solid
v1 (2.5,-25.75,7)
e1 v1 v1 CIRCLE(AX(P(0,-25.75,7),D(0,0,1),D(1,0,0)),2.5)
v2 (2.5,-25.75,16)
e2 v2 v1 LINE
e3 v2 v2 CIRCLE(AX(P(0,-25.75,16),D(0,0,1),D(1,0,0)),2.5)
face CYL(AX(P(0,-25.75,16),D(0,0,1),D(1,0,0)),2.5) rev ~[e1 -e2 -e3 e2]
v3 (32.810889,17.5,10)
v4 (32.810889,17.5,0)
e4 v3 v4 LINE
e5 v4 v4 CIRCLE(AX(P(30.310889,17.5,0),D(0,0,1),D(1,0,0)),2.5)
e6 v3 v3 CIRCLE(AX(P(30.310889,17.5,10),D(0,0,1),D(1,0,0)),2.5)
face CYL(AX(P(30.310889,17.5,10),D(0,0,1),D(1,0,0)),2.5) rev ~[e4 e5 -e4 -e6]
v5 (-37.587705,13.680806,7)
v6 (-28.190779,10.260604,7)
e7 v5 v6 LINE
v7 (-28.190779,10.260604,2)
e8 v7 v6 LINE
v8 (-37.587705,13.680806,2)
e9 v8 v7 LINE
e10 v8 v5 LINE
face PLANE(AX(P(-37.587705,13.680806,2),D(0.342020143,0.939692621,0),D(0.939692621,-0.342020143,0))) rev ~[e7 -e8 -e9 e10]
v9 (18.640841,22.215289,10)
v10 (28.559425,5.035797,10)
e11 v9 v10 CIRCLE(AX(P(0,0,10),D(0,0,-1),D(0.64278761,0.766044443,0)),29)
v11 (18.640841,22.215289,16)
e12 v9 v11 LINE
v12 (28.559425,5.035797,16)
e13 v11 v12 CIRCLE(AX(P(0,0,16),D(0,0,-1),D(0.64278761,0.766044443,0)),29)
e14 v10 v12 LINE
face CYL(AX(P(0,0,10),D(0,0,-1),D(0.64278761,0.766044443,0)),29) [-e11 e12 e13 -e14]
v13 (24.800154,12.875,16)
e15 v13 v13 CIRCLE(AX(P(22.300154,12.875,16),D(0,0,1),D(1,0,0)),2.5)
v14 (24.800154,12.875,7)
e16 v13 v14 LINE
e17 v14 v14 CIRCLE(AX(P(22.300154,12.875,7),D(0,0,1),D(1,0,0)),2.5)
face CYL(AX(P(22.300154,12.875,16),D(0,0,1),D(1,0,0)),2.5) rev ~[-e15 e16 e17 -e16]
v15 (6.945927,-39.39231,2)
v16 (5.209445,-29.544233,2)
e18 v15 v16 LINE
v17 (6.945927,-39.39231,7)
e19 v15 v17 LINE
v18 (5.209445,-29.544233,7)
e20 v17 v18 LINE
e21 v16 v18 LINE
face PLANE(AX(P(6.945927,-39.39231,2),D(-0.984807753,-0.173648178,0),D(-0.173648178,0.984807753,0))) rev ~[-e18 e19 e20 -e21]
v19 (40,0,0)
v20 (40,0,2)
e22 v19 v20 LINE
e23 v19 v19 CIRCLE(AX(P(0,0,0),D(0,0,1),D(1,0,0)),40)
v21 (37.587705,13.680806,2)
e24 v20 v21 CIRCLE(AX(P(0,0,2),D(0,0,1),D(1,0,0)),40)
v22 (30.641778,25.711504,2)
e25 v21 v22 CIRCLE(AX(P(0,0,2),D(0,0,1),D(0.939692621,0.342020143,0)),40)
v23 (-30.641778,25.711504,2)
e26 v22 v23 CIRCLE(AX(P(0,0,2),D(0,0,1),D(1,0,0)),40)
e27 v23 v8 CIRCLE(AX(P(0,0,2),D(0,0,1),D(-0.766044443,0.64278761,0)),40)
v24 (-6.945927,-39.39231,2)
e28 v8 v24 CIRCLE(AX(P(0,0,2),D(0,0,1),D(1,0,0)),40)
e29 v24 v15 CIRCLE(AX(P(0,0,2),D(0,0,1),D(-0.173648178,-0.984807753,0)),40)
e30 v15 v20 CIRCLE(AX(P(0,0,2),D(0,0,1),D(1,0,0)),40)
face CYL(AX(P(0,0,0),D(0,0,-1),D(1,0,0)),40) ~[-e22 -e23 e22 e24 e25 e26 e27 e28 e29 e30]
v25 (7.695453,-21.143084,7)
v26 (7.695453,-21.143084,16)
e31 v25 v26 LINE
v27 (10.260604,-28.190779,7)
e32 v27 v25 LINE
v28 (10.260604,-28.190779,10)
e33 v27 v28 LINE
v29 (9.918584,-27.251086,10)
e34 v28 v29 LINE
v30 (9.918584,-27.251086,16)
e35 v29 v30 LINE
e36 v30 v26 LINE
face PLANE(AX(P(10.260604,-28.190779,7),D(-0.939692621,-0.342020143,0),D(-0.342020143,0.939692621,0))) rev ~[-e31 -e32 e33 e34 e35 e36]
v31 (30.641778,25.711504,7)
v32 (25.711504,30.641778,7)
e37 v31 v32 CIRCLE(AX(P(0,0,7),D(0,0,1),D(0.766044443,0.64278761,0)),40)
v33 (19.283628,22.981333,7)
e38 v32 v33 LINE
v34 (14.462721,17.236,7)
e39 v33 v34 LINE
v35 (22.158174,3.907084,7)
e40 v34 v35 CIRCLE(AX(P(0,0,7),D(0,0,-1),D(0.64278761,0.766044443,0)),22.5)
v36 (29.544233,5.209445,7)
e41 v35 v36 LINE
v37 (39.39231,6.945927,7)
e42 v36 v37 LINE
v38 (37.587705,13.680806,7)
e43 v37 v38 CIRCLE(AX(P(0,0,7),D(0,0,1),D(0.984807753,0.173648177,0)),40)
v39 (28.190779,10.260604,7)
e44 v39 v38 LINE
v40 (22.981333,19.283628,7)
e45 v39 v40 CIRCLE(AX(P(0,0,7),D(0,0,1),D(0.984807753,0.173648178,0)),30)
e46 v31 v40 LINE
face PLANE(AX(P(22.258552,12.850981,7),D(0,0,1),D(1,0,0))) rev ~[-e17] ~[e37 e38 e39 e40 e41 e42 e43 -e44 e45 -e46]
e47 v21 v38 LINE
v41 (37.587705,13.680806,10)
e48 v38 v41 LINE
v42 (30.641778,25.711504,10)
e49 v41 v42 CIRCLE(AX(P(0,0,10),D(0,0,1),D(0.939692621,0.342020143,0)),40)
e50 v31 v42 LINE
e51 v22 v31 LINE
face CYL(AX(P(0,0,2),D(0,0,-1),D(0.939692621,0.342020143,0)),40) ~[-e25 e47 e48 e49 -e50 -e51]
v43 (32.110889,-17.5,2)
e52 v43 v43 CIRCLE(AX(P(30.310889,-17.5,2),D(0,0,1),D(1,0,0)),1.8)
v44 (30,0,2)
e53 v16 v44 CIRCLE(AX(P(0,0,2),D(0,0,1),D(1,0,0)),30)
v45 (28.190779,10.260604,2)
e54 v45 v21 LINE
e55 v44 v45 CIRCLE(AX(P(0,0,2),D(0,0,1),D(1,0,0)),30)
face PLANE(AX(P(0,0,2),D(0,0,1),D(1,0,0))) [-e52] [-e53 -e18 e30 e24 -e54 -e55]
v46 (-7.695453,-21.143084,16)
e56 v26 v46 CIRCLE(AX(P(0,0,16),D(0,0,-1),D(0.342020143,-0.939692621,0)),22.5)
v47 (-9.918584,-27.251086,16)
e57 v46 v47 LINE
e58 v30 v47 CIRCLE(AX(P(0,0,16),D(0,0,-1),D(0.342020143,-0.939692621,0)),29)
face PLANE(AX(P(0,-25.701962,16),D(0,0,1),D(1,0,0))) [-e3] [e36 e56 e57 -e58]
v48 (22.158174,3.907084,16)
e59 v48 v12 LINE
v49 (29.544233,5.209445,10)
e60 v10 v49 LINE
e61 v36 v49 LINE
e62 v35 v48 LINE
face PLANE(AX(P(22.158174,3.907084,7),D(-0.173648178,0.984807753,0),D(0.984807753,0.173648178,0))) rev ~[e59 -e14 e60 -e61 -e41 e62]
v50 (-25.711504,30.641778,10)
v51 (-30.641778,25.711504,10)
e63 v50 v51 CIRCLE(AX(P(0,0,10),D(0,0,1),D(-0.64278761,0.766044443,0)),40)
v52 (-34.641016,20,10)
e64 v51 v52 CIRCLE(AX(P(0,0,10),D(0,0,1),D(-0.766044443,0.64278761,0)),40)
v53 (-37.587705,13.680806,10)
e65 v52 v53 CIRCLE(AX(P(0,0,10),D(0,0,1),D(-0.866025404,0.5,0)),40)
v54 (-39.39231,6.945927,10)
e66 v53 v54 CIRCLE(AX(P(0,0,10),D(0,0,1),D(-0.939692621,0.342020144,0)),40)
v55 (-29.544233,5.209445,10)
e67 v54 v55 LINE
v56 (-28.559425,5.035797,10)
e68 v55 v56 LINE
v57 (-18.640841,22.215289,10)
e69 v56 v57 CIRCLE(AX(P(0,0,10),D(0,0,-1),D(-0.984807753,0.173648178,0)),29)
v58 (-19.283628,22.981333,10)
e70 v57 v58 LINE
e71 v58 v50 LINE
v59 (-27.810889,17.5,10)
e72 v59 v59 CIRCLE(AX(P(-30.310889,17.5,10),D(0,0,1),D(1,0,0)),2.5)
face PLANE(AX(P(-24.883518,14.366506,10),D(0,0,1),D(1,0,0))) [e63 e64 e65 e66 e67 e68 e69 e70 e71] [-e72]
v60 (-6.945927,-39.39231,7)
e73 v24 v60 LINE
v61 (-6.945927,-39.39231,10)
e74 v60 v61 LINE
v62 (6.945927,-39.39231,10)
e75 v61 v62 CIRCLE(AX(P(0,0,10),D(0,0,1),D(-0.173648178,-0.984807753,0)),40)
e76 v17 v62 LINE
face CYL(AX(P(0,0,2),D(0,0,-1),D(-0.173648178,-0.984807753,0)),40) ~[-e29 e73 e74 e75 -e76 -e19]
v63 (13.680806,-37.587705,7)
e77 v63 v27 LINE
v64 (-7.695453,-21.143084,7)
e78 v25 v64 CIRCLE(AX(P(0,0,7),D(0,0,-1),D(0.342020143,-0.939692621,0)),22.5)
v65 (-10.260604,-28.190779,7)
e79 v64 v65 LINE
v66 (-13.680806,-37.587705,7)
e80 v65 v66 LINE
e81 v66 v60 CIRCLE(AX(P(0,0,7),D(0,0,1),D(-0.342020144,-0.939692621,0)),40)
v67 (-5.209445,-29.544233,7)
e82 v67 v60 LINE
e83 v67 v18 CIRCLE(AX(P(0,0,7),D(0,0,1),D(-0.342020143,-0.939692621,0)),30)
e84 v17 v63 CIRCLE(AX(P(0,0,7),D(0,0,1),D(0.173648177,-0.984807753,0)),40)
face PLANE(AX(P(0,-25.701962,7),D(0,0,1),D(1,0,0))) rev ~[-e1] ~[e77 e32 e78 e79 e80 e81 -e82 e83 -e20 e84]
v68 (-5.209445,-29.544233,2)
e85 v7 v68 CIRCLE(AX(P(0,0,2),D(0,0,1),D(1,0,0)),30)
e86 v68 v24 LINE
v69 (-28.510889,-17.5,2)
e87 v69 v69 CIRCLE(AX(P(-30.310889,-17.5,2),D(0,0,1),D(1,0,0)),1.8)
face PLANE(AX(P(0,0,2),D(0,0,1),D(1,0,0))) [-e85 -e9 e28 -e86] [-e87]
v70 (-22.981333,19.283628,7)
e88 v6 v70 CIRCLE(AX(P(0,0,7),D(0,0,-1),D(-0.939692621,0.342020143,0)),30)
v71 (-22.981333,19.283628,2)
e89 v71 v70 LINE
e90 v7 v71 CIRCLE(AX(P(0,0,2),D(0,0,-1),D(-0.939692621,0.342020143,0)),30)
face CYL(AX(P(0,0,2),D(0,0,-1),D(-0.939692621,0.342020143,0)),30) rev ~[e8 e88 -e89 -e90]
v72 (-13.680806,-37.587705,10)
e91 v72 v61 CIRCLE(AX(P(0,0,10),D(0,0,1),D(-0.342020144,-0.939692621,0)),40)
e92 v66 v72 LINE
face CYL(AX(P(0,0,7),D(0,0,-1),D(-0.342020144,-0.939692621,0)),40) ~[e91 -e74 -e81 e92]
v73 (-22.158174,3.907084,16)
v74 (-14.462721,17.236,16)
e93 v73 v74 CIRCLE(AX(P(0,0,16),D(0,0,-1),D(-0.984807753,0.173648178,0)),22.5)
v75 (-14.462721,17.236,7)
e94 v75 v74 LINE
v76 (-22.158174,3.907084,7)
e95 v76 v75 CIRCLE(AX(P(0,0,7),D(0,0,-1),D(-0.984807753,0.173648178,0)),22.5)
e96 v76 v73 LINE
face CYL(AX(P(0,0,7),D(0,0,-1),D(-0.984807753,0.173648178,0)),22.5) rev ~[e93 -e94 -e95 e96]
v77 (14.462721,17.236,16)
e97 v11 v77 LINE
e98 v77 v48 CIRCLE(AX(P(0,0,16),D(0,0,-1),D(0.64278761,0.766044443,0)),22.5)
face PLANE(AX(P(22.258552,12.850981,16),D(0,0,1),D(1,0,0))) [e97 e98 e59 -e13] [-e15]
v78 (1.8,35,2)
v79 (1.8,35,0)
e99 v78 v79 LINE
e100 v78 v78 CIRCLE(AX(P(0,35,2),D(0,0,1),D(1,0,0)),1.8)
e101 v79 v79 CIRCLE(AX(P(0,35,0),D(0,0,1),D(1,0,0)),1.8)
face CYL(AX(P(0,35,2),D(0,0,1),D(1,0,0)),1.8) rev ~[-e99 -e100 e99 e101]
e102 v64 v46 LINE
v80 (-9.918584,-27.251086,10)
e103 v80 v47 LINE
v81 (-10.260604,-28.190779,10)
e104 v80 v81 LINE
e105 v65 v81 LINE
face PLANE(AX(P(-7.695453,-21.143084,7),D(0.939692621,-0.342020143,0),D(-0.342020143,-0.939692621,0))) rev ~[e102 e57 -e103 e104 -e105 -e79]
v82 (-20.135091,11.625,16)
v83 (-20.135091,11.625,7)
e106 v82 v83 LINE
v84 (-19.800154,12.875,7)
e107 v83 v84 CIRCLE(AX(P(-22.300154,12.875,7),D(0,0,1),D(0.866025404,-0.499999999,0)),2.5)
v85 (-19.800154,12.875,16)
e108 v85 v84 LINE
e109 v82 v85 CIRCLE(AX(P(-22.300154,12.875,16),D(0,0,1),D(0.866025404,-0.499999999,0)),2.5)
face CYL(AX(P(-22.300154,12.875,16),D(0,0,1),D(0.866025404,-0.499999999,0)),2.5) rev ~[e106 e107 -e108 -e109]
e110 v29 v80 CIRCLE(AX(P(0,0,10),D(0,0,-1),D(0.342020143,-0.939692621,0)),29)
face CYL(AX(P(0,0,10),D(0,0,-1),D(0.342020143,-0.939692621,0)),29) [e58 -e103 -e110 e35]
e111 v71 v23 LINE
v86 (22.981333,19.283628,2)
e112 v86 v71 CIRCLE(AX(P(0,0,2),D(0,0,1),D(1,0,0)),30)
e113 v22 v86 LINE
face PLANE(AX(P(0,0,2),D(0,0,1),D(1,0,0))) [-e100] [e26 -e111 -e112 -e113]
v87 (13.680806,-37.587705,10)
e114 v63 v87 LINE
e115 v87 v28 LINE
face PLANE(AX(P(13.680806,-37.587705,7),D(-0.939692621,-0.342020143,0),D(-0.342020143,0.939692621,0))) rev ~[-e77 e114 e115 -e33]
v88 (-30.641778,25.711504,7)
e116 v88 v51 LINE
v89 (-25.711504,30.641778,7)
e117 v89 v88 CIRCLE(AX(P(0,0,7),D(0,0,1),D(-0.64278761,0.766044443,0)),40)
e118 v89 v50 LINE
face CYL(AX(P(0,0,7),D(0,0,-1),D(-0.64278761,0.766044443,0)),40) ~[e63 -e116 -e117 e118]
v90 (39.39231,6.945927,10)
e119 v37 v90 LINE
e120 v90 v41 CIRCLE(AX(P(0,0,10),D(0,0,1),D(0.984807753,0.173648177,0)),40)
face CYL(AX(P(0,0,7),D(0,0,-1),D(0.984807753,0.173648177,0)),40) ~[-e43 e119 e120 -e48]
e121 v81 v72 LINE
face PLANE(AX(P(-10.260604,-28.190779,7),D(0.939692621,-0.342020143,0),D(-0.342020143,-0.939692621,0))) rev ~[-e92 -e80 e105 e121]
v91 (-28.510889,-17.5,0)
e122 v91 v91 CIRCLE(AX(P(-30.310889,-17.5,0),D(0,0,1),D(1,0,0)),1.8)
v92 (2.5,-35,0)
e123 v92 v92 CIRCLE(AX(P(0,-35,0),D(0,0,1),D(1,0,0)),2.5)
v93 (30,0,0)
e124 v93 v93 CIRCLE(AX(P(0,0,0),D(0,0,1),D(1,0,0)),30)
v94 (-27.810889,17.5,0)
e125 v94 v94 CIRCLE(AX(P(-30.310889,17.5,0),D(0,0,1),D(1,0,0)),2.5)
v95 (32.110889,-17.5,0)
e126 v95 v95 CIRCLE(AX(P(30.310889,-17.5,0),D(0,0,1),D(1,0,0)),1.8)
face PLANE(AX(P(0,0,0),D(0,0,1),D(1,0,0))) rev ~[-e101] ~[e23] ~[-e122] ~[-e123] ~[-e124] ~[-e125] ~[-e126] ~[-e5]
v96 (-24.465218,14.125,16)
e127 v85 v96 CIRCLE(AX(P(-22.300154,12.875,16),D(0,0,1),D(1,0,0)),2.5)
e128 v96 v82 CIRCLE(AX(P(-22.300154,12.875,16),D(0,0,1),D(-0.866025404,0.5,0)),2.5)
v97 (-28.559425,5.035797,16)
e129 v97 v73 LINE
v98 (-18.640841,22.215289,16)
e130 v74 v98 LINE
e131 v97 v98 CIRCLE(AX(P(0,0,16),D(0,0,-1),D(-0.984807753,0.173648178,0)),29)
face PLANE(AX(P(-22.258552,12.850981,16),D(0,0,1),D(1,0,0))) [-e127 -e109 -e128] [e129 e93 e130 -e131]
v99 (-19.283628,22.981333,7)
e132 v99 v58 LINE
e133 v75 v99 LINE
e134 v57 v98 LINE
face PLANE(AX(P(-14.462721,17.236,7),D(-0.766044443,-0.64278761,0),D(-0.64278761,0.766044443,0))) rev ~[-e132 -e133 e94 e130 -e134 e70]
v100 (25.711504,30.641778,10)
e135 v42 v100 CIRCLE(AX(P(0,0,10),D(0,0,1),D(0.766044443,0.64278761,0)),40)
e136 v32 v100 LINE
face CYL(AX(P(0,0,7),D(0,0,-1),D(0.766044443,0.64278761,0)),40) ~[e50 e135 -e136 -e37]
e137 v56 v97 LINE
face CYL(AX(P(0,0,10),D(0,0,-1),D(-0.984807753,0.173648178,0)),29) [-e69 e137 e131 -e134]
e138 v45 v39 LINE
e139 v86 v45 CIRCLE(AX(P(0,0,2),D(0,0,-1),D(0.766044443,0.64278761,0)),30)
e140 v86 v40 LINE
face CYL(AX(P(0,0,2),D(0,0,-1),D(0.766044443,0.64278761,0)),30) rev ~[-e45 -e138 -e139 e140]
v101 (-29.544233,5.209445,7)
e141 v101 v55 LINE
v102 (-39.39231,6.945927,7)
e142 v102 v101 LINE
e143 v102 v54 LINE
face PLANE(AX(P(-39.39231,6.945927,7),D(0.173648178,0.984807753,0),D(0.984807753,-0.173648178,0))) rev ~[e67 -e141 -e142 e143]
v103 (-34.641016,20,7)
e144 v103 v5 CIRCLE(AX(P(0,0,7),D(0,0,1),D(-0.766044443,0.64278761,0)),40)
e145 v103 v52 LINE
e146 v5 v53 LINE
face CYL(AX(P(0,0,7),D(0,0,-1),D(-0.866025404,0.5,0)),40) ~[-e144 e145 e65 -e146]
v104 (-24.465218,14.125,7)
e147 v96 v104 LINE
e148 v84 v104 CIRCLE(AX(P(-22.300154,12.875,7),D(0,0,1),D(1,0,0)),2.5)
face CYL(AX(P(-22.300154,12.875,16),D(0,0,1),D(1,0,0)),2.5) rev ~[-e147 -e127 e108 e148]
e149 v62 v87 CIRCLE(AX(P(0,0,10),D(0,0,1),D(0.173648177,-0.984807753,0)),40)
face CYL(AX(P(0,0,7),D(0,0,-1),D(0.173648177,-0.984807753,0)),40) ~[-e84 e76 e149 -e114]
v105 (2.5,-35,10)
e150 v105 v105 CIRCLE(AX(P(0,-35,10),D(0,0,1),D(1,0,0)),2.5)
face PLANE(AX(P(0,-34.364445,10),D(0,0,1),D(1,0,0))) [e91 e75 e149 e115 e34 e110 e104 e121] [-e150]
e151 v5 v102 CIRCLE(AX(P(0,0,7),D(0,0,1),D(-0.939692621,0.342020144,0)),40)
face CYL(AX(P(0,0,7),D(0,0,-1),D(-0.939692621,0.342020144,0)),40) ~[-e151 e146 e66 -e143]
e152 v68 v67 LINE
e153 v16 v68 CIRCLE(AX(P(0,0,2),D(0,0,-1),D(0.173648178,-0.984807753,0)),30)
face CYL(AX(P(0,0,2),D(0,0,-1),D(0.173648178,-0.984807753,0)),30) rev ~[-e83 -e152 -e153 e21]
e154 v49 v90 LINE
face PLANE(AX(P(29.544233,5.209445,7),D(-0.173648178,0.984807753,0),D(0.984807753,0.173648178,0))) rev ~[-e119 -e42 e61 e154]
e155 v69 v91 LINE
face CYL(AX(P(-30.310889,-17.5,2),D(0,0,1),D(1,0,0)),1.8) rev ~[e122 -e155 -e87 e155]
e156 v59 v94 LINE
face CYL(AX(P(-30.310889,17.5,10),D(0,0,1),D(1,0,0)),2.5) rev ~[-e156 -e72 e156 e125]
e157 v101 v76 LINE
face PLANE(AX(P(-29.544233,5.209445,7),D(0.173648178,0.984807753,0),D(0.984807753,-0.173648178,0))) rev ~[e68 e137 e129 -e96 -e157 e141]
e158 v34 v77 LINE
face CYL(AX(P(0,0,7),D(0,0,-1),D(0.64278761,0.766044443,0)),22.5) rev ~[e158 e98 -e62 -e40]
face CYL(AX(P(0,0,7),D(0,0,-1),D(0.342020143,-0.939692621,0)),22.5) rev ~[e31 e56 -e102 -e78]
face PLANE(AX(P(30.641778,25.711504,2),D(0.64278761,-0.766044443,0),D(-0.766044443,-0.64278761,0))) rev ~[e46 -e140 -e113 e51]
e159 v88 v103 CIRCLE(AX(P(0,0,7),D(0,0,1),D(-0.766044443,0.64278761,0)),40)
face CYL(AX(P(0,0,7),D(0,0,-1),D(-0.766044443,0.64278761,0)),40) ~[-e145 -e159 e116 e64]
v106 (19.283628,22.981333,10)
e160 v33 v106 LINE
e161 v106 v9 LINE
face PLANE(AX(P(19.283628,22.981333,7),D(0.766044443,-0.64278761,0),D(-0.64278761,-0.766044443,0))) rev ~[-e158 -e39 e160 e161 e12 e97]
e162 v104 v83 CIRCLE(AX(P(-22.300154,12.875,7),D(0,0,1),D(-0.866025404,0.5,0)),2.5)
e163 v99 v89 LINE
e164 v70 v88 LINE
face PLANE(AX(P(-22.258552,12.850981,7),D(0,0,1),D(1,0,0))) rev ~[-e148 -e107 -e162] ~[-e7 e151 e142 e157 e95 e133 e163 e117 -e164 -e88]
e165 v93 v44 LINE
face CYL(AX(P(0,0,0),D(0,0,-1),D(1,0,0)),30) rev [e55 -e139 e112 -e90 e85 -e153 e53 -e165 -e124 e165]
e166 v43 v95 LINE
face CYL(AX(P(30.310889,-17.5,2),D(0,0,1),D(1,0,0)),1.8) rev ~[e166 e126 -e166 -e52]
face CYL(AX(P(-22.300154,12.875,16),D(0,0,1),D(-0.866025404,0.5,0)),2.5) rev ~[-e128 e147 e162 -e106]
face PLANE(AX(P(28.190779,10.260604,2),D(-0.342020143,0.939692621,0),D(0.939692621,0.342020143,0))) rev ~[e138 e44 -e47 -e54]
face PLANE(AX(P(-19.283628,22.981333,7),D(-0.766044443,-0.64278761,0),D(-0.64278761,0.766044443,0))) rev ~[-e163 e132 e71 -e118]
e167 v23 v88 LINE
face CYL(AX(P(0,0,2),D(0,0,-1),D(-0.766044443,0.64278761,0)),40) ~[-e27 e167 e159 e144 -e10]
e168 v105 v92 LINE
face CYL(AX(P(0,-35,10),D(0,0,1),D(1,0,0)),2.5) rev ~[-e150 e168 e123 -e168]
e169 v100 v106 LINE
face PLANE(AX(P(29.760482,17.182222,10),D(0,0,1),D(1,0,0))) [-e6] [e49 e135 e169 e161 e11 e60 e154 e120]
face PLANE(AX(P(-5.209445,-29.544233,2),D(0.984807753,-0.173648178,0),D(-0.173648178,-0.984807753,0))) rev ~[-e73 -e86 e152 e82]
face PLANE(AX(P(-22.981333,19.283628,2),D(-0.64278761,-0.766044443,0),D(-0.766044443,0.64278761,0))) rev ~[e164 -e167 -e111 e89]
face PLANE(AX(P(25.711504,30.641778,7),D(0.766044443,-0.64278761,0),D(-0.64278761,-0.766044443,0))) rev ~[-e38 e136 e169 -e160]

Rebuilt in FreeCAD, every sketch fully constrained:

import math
import FreeCAD as App
import Part
import Sketcher
Q = App.Units.Quantity

doc = App.newDocument("Part")
body = doc.addObject("PartDesign::Body", "Body")

# Sketch on XY plane
sketch1 = body.newObject("Sketcher::SketchObject", "Sketch")
sketch1.AttachmentSupport = (doc.getObject("XY_Plane"), [""])
sketch1.MapMode = "FlatFace"
sketch1.addGeometry(Part.Circle(App.Vector(0, 0, 0), App.Vector(0, 0, 1), 40), False)
sketch1.addGeometry(Part.Circle(App.Vector(0, 0, 0), App.Vector(0, 0, 1), 30), False)
sketch1.addConstraint(Sketcher.Constraint("Coincident", 0, 3, -1, 1))
sketch1.addConstraint(Sketcher.Constraint("Coincident", 1, 3, -1, 1))
sketch1.addConstraint(Sketcher.Constraint("Diameter", 0, Q("80 mm")))
sketch1.addConstraint(Sketcher.Constraint("Diameter", 1, Q("60 mm")))
pad1 = body.newObject("PartDesign::Pad", "Pad")
pad1.Profile = sketch1
pad1.Length = 2

# Sketch on XY plane
sketch2 = body.newObject("Sketcher::SketchObject", "Sketch001")
sketch2.AttachmentSupport = (doc.getObject("XY_Plane"), [""])
sketch2.MapMode = "FlatFace"
sketch2.AttachmentOffset = App.Placement(App.Vector(0, 0, 2), App.Rotation())
sketch2.addGeometry(Part.Circle(App.Vector(0, 35, 0), App.Vector(0, 0, 1), 1.8), False)
sketch2.addConstraint(Sketcher.Constraint("PointOnObject", 0, 3, -2))
sketch2.addConstraint(Sketcher.Constraint("Diameter", 0, Q("3.6 mm")))
sketch2.addConstraint(Sketcher.Constraint("DistanceY", -1, 1, 0, 3, Q("35 mm")))
pocket1 = body.newObject("PartDesign::Pocket", "Pocket")
pocket1.Profile = sketch2
pocket1.Type = "UpToFirst"

# Sketch on XY plane
sketch3 = body.newObject("Sketcher::SketchObject", "Sketch002")
sketch3.AttachmentSupport = (doc.getObject("XY_Plane"), [""])
sketch3.MapMode = "FlatFace"
sketch3.AttachmentOffset = App.Placement(App.Vector(0, 0, 2), App.Rotation())
sketch3.addGeometry(Part.Circle(App.Vector(30.3, -17.5, 0), App.Vector(0, 0, 1), 1.8), False)
sketch3.addConstraint(Sketcher.Constraint("Diameter", 0, Q("3.6 mm")))
sketch3.addConstraint(Sketcher.Constraint("DistanceY", 0, 3, -1, 1, Q("17.5 mm")))
sketch3.addConstraint(Sketcher.Constraint("DistanceX", -1, 1, 0, 3, Q("30.310889 mm")))
pocket2 = body.newObject("PartDesign::Pocket", "Pocket001")
pocket2.Profile = sketch3
pocket2.Type = "UpToFirst"

# Sketch on XY plane
sketch4 = body.newObject("Sketcher::SketchObject", "Sketch003")
sketch4.AttachmentSupport = (doc.getObject("XY_Plane"), [""])
sketch4.MapMode = "FlatFace"
sketch4.AttachmentOffset = App.Placement(App.Vector(0, 0, 2), App.Rotation())
sketch4.addGeometry(Part.Circle(App.Vector(-30.3, -17.5, 0), App.Vector(0, 0, 1), 1.8), False)
sketch4.addConstraint(Sketcher.Constraint("Diameter", 0, Q("3.6 mm")))
sketch4.addConstraint(Sketcher.Constraint("DistanceY", 0, 3, -1, 1, Q("17.5 mm")))
sketch4.addConstraint(Sketcher.Constraint("DistanceX", 0, 3, -1, 1, Q("30.310889 mm")))
pocket3 = body.newObject("PartDesign::Pocket", "Pocket002")
pocket3.Profile = sketch4
pocket3.Type = "UpToFirst"

# Sketch on XY plane
sketch5 = body.newObject("Sketcher::SketchObject", "Sketch004")
sketch5.AttachmentSupport = (doc.getObject("XY_Plane"), [""])
sketch5.MapMode = "FlatFace"
sketch5.AttachmentOffset = App.Placement(App.Vector(0, 0, 2), App.Rotation())
sketch5.addGeometry(Part.LineSegment(App.Vector(31, 26, 0), App.Vector(23, 19, 0)), False)
sketch5.addGeometry(Part.ArcOfCircle(Part.Circle(App.Vector(0, 0, 0), App.Vector(0, 0, 1), 30), math.radians(20), math.radians(40)), False)
sketch5.addGeometry(Part.LineSegment(App.Vector(28, 10, 0), App.Vector(38, 14, 0)), False)
sketch5.addGeometry(Part.ArcOfCircle(Part.Circle(App.Vector(0, 0, 0), App.Vector(0, 0, 1), 40), math.radians(20), math.radians(40)), False)
sketch5.addGeometry(Part.ArcOfCircle(Part.Circle(App.Vector(0, 0, 0), App.Vector(0, 0, 1), 30), math.radians(140), math.radians(160)), False)
sketch5.addGeometry(Part.LineSegment(App.Vector(-23, 19, 0), App.Vector(-31, 26, 0)), False)
sketch5.addGeometry(Part.ArcOfCircle(Part.Circle(App.Vector(0, 0, 0), App.Vector(0, 0, 1), 40), math.radians(140), math.radians(160)), False)
sketch5.addGeometry(Part.LineSegment(App.Vector(-38, 14, 0), App.Vector(-28, 10, 0)), False)
sketch5.addGeometry(Part.LineSegment(App.Vector(7, -39, 0), App.Vector(5, -30, 0)), False)
sketch5.addGeometry(Part.ArcOfCircle(Part.Circle(App.Vector(0, 0, 0), App.Vector(0, 0, 1), 30), math.radians(-100), math.radians(-80)), False)
sketch5.addGeometry(Part.LineSegment(App.Vector(-5, -30, 0), App.Vector(-7, -39, 0)), False)
sketch5.addGeometry(Part.ArcOfCircle(Part.Circle(App.Vector(0, 0, 0), App.Vector(0, 0, 1), 40), math.radians(-100), math.radians(-80)), False)
sketch5.addConstraint(Sketcher.Constraint("Coincident", 0, 2, 1, 2))
sketch5.addConstraint(Sketcher.Constraint("Coincident", 1, 1, 2, 1))
sketch5.addConstraint(Sketcher.Constraint("Coincident", 2, 2, 3, 1))
sketch5.addConstraint(Sketcher.Constraint("Coincident", 3, 2, 0, 1))
sketch5.addConstraint(Sketcher.Constraint("Coincident", 4, 1, 5, 1))
sketch5.addConstraint(Sketcher.Constraint("Coincident", 5, 2, 6, 1))
sketch5.addConstraint(Sketcher.Constraint("Coincident", 6, 2, 7, 1))
sketch5.addConstraint(Sketcher.Constraint("Coincident", 7, 2, 4, 2))
sketch5.addConstraint(Sketcher.Constraint("Coincident", 8, 2, 9, 2))
sketch5.addConstraint(Sketcher.Constraint("Coincident", 9, 1, 10, 1))
sketch5.addConstraint(Sketcher.Constraint("Coincident", 10, 2, 11, 1))
sketch5.addConstraint(Sketcher.Constraint("Coincident", 11, 2, 8, 1))
sketch5.addConstraint(Sketcher.Constraint("Coincident", 1, 3, -1, 1))
sketch5.addConstraint(Sketcher.Constraint("Coincident", 3, 3, -1, 1))
sketch5.addConstraint(Sketcher.Constraint("Coincident", 4, 3, -1, 1))
sketch5.addConstraint(Sketcher.Constraint("Coincident", 6, 3, -1, 1))
sketch5.addConstraint(Sketcher.Constraint("Coincident", 9, 3, -1, 1))
sketch5.addConstraint(Sketcher.Constraint("Coincident", 11, 3, -1, 1))
sketch5.addConstraint(Sketcher.Constraint("Equal", 1, 4))
sketch5.addConstraint(Sketcher.Constraint("Equal", 3, 6))
sketch5.addConstraint(Sketcher.Constraint("Equal", 4, 9))
sketch5.addConstraint(Sketcher.Constraint("Equal", 6, 11))
sketch5.addConstraint(Sketcher.Constraint("Horizontal", 0, 2, 4, 1))
sketch5.addConstraint(Sketcher.Constraint("Horizontal", 3, 2, 5, 2))
sketch5.addConstraint(Sketcher.Constraint("Horizontal", 2, 2, 6, 2))
sketch5.addConstraint(Sketcher.Constraint("Horizontal", 1, 1, 7, 2))
sketch5.addConstraint(Sketcher.Constraint("Horizontal", 8, 2, 9, 1))
sketch5.addConstraint(Sketcher.Constraint("Horizontal", 10, 2, 11, 2))
sketch5.addConstraint(Sketcher.Constraint("Radius", 1, Q("30 mm")))
sketch5.addConstraint(Sketcher.Constraint("Radius", 3, Q("40 mm")))
sketch5.addConstraint(Sketcher.Constraint("Angle", 0, Q("-140 deg")))
sketch5.addConstraint(Sketcher.Constraint("Angle", 2, Q("20 deg")))
sketch5.addConstraint(Sketcher.Constraint("Angle", 8, Q("100 deg")))
sketch5.addConstraint(Sketcher.Constraint("DistanceX", 1, 1, 3, 2, Q("2.450999 mm")))
sketch5.addConstraint(Sketcher.Constraint("DistanceY", 2, 2, 3, 2, Q("12.030699 mm")))
sketch5.addConstraint(Sketcher.Constraint("DistanceY", 10, 2, -1, 1, Q("39.39231 mm")))
pad2 = body.newObject("PartDesign::Pad", "Pad001")
pad2.Profile = sketch5
pad2.Length = 5

# Sketch on XY plane
sketch6 = body.newObject("Sketcher::SketchObject", "Sketch005")
sketch6.AttachmentSupport = (doc.getObject("XY_Plane"), [""])
sketch6.MapMode = "FlatFace"
sketch6.AttachmentOffset = App.Placement(App.Vector(0, 0, 7), App.Rotation())
sketch6.addGeometry(Part.ArcOfCircle(Part.Circle(App.Vector(0, 0, 0), App.Vector(0, 0, 1), 30), math.radians(130), math.radians(140)), False)
sketch6.addGeometry(Part.LineSegment(App.Vector(-19, 23, 0), App.Vector(-26, 31, 0)), False)
sketch6.addGeometry(Part.ArcOfCircle(Part.Circle(App.Vector(0, 0, 0), App.Vector(0, 0, 1), 40), math.radians(130), math.radians(140)), False)
sketch6.addGeometry(Part.ArcOfCircle(Part.Circle(App.Vector(0, 0, 0), App.Vector(0, 0, 1), 40), math.radians(140), math.radians(150)), False)
sketch6.addGeometry(Part.ArcOfCircle(Part.Circle(App.Vector(0, 0, 0), App.Vector(0, 0, 1), 40), math.radians(150), math.radians(160)), False)
sketch6.addGeometry(Part.ArcOfCircle(Part.Circle(App.Vector(0, 0, 0), App.Vector(0, 0, 1), 40), math.radians(160), math.radians(170)), False)
sketch6.addGeometry(Part.LineSegment(App.Vector(-39, 7, 0), App.Vector(-30, 5, 0)), False)
sketch6.addGeometry(Part.ArcOfCircle(Part.Circle(App.Vector(0, 0, 0), App.Vector(0, 0, 1), 30), math.radians(160), math.radians(170)), False)
sketch6.addGeometry(Part.ArcOfCircle(Part.Circle(App.Vector(0, 0, 0), App.Vector(0, 0, 1), 30), math.radians(150), math.radians(160)), False)
sketch6.addGeometry(Part.ArcOfCircle(Part.Circle(App.Vector(0, 0, 0), App.Vector(0, 0, 1), 30), math.radians(140), math.radians(150)), False)
sketch6.addGeometry(Part.LineSegment(App.Vector(26, 31, 0), App.Vector(19, 23, 0)), False)
sketch6.addGeometry(Part.ArcOfCircle(Part.Circle(App.Vector(0, 0, 0), App.Vector(0, 0, 1), 30), math.radians(40), math.radians(50)), False)
sketch6.addGeometry(Part.ArcOfCircle(Part.Circle(App.Vector(0, 0, 0), App.Vector(0, 0, 1), 30), math.radians(20), math.radians(40)), False)
sketch6.addGeometry(Part.ArcOfCircle(Part.Circle(App.Vector(0, 0, 0), App.Vector(0, 0, 1), 30), math.radians(10), math.radians(20)), False)
sketch6.addGeometry(Part.LineSegment(App.Vector(30, 5, 0), App.Vector(39, 7, 0)), False)
sketch6.addGeometry(Part.ArcOfCircle(Part.Circle(App.Vector(0, 0, 0), App.Vector(0, 0, 1), 40), math.radians(10), math.radians(20)), False)
sketch6.addGeometry(Part.ArcOfCircle(Part.Circle(App.Vector(0, 0, 0), App.Vector(0, 0, 1), 40), math.radians(20), math.radians(40)), False)
sketch6.addGeometry(Part.ArcOfCircle(Part.Circle(App.Vector(0, 0, 0), App.Vector(0, 0, 1), 40), math.radians(40), math.radians(50)), False)
sketch6.addGeometry(Part.ArcOfCircle(Part.Circle(App.Vector(0, 0, 0), App.Vector(0, 0, 1), 30), math.radians(-110), math.radians(-100)), False)
sketch6.addGeometry(Part.LineSegment(App.Vector(-10, -28, 0), App.Vector(-14, -38, 0)), False)
sketch6.addGeometry(Part.ArcOfCircle(Part.Circle(App.Vector(0, 0, 0), App.Vector(0, 0, 1), 40), math.radians(-110), math.radians(-100)), False)
sketch6.addGeometry(Part.ArcOfCircle(Part.Circle(App.Vector(0, 0, 0), App.Vector(0, 0, 1), 40), math.radians(-100), math.radians(-80)), False)
sketch6.addGeometry(Part.ArcOfCircle(Part.Circle(App.Vector(0, 0, 0), App.Vector(0, 0, 1), 40), math.radians(-80), math.radians(-70)), False)
sketch6.addGeometry(Part.LineSegment(App.Vector(14, -38, 0), App.Vector(10, -28, 0)), False)
sketch6.addGeometry(Part.ArcOfCircle(Part.Circle(App.Vector(0, 0, 0), App.Vector(0, 0, 1), 30), math.radians(-80), math.radians(-70)), False)
sketch6.addGeometry(Part.ArcOfCircle(Part.Circle(App.Vector(0, 0, 0), App.Vector(0, 0, 1), 30), math.radians(-100), math.radians(-80)), False)
sketch6.addConstraint(Sketcher.Constraint("Coincident", 0, 1, 1, 1))
sketch6.addConstraint(Sketcher.Constraint("Coincident", 1, 2, 2, 1))
sketch6.addConstraint(Sketcher.Constraint("Tangent", 2, 2, 3, 1))
sketch6.addConstraint(Sketcher.Constraint("Tangent", 3, 2, 4, 1))
sketch6.addConstraint(Sketcher.Constraint("Tangent", 4, 2, 5, 1))
sketch6.addConstraint(Sketcher.Constraint("Coincident", 5, 2, 6, 1))
sketch6.addConstraint(Sketcher.Constraint("Coincident", 6, 2, 7, 2))
sketch6.addConstraint(Sketcher.Constraint("Tangent", 7, 1, 8, 2))
sketch6.addConstraint(Sketcher.Constraint("Tangent", 8, 1, 9, 2))
sketch6.addConstraint(Sketcher.Constraint("Tangent", 9, 1, 0, 2))
sketch6.addConstraint(Sketcher.Constraint("Coincident", 10, 2, 11, 2))
sketch6.addConstraint(Sketcher.Constraint("Tangent", 11, 1, 12, 2))
sketch6.addConstraint(Sketcher.Constraint("Tangent", 12, 1, 13, 2))
sketch6.addConstraint(Sketcher.Constraint("Coincident", 13, 1, 14, 1))
sketch6.addConstraint(Sketcher.Constraint("Coincident", 14, 2, 15, 1))
sketch6.addConstraint(Sketcher.Constraint("Tangent", 15, 2, 16, 1))
sketch6.addConstraint(Sketcher.Constraint("Tangent", 16, 2, 17, 1))
sketch6.addConstraint(Sketcher.Constraint("Coincident", 17, 2, 10, 1))
sketch6.addConstraint(Sketcher.Constraint("Coincident", 18, 1, 19, 1))
sketch6.addConstraint(Sketcher.Constraint("Coincident", 19, 2, 20, 1))
sketch6.addConstraint(Sketcher.Constraint("Tangent", 20, 2, 21, 1))
sketch6.addConstraint(Sketcher.Constraint("Tangent", 21, 2, 22, 1))
sketch6.addConstraint(Sketcher.Constraint("Coincident", 22, 2, 23, 1))
sketch6.addConstraint(Sketcher.Constraint("Coincident", 23, 2, 24, 2))
sketch6.addConstraint(Sketcher.Constraint("Tangent", 24, 1, 25, 2))
sketch6.addConstraint(Sketcher.Constraint("Tangent", 25, 1, 18, 2))
sketch6.addConstraint(Sketcher.Constraint("Coincident", 0, 3, -1, 1))
sketch6.addConstraint(Sketcher.Constraint("Coincident", 2, 3, -1, 1))
sketch6.addConstraint(Sketcher.Constraint("Coincident", 4, 3, -1, 1))
sketch6.addConstraint(Sketcher.Constraint("Coincident", 7, 3, -1, 1))
sketch6.addConstraint(Sketcher.Constraint("Coincident", 11, 3, -1, 1))
sketch6.addConstraint(Sketcher.Constraint("Coincident", 13, 3, -1, 1))
sketch6.addConstraint(Sketcher.Constraint("Coincident", 15, 3, -1, 1))
sketch6.addConstraint(Sketcher.Constraint("Coincident", 17, 3, -1, 1))
sketch6.addConstraint(Sketcher.Constraint("Coincident", 18, 3, -1, 1))
sketch6.addConstraint(Sketcher.Constraint("Coincident", 20, 3, -1, 1))
sketch6.addConstraint(Sketcher.Constraint("Coincident", 22, 3, -1, 1))
sketch6.addConstraint(Sketcher.Constraint("Coincident", 24, 3, -1, 1))
sketch6.addConstraint(Sketcher.Constraint("Equal", 4, 5))
sketch6.addConstraint(Sketcher.Constraint("Equal", 0, 7))
sketch6.addConstraint(Sketcher.Constraint("Equal", 9, 11))
sketch6.addConstraint(Sketcher.Constraint("Equal", 5, 15))
sketch6.addConstraint(Sketcher.Constraint("Equal", 13, 18))
sketch6.addConstraint(Sketcher.Constraint("Equal", 17, 20))
sketch6.addConstraint(Sketcher.Constraint("Horizontal", 0, 1, 10, 2))
sketch6.addConstraint(Sketcher.Constraint("Horizontal", 9, 1, 11, 1))
sketch6.addConstraint(Sketcher.Constraint("Horizontal", 7, 1, 12, 1))
sketch6.addConstraint(Sketcher.Constraint("Horizontal", 6, 2, 13, 1))
sketch6.addConstraint(Sketcher.Constraint("Horizontal", 5, 2, 14, 2))
sketch6.addConstraint(Sketcher.Constraint("Horizontal", 4, 2, 15, 2))
sketch6.addConstraint(Sketcher.Constraint("Horizontal", 2, 2, 16, 2))
sketch6.addConstraint(Sketcher.Constraint("Horizontal", 1, 2, 17, 2))
sketch6.addConstraint(Sketcher.Constraint("Horizontal", 20, 2, 21, 2))
sketch6.addConstraint(Sketcher.Constraint("Horizontal", 19, 2, 22, 2))
sketch6.addConstraint(Sketcher.Constraint("Horizontal", 18, 1, 23, 2))
sketch6.addConstraint(Sketcher.Constraint("Horizontal", 24, 1, 25, 1))
sketch6.addConstraint(Sketcher.Constraint("Radius", 0, Q("30 mm")))
sketch6.addConstraint(Sketcher.Constraint("Radius", 2, Q("40 mm")))
sketch6.addConstraint(Sketcher.Constraint("Angle", 1, Q("130 deg")))
sketch6.addConstraint(Sketcher.Constraint("Angle", 6, Q("-10 deg")))
sketch6.addConstraint(Sketcher.Constraint("Angle", 19, Q("-110 deg")))
sketch6.addConstraint(Sketcher.Constraint("DistanceY", -1, 1, 3, 2, Q("20 mm")))
sketch6.addConstraint(Sketcher.Constraint("DistanceY", -1, 1, 8, 1, Q("15 mm")))
sketch6.addConstraint(Sketcher.Constraint("DistanceX", 12, 1, 16, 2, Q("2.450999 mm")))
sketch6.addConstraint(Sketcher.Constraint("DistanceY", 4, 2, 2, 2, Q("12.030699 mm")))
sketch6.addConstraint(Sketcher.Constraint("DistanceX", 4, 2, 1, 2, Q("11.8762 mm")))
sketch6.addConstraint(Sketcher.Constraint("DistanceY", 7, 1, 4, 2, Q("3.420201 mm")))
sketch6.addConstraint(Sketcher.Constraint("DistanceX", 11, 1, 13, 1, Q("6.562899 mm")))
sketch6.addConstraint(Sketcher.Constraint("DistanceY", 14, 2, 11, 1, Q("12.337701 mm")))
sketch6.addConstraint(Sketcher.Constraint("DistanceY", 18, 1, -1, 1, Q("28.190779 mm")))
sketch6.addConstraint(Sketcher.Constraint("DistanceY", 20, 2, -1, 1, Q("39.39231 mm")))
sketch6.addConstraint(Sketcher.Constraint("DistanceX", 24, 1, 23, 2, Q("5.051159 mm")))
pad3 = body.newObject("PartDesign::Pad", "Pad002")
pad3.Profile = sketch6
pad3.Length = 3

# Sketch on XY plane
sketch7 = body.newObject("Sketcher::SketchObject", "Sketch006")
sketch7.AttachmentSupport = (doc.getObject("XY_Plane"), [""])
sketch7.MapMode = "FlatFace"
sketch7.AttachmentOffset = App.Placement(App.Vector(0, 0, 10), App.Rotation())
sketch7.addGeometry(Part.Circle(App.Vector(-30.3, 17.5, 0), App.Vector(0, 0, 1), 2.5), False)
sketch7.addConstraint(Sketcher.Constraint("Diameter", 0, Q("5 mm")))
sketch7.addConstraint(Sketcher.Constraint("DistanceY", -1, 1, 0, 3, Q("17.5 mm")))
sketch7.addConstraint(Sketcher.Constraint("DistanceX", 0, 3, -1, 1, Q("30.310889 mm")))
pocket4 = body.newObject("PartDesign::Pocket", "Pocket003")
pocket4.Profile = sketch7
pocket4.Type = "UpToFirst"

# Sketch on XY plane
sketch8 = body.newObject("Sketcher::SketchObject", "Sketch007")
sketch8.AttachmentSupport = (doc.getObject("XY_Plane"), [""])
sketch8.MapMode = "FlatFace"
sketch8.AttachmentOffset = App.Placement(App.Vector(0, 0, 10), App.Rotation())
sketch8.addGeometry(Part.Circle(App.Vector(30.3, 17.5, 0), App.Vector(0, 0, 1), 2.5), False)
sketch8.addConstraint(Sketcher.Constraint("Diameter", 0, Q("5 mm")))
sketch8.addConstraint(Sketcher.Constraint("DistanceY", -1, 1, 0, 3, Q("17.5 mm")))
sketch8.addConstraint(Sketcher.Constraint("DistanceX", -1, 1, 0, 3, Q("30.310889 mm")))
pocket5 = body.newObject("PartDesign::Pocket", "Pocket004")
pocket5.Profile = sketch8
pocket5.Type = "UpToFirst"

# Sketch on XY plane
sketch9 = body.newObject("Sketcher::SketchObject", "Sketch008")
sketch9.AttachmentSupport = (doc.getObject("XY_Plane"), [""])
sketch9.MapMode = "FlatFace"
sketch9.AttachmentOffset = App.Placement(App.Vector(0, 0, 10), App.Rotation())
sketch9.addGeometry(Part.Circle(App.Vector(0, -35, 0), App.Vector(0, 0, 1), 2.5), False)
sketch9.addConstraint(Sketcher.Constraint("PointOnObject", 0, 3, -2))
sketch9.addConstraint(Sketcher.Constraint("Diameter", 0, Q("5 mm")))
sketch9.addConstraint(Sketcher.Constraint("DistanceY", 0, 3, -1, 1, Q("35 mm")))
pocket6 = body.newObject("PartDesign::Pocket", "Pocket005")
pocket6.Profile = sketch9
pocket6.Type = "UpToFirst"

# Sketch on XY plane
sketch10 = body.newObject("Sketcher::SketchObject", "Sketch009")
sketch10.AttachmentSupport = (doc.getObject("XY_Plane"), [""])
sketch10.MapMode = "FlatFace"
sketch10.AttachmentOffset = App.Placement(App.Vector(0, 0, 7), App.Rotation())
sketch10.addGeometry(Part.LineSegment(App.Vector(-14, 17, 0), App.Vector(-19, 23, 0)), False)
sketch10.addGeometry(Part.ArcOfCircle(Part.Circle(App.Vector(0, 0, 0), App.Vector(0, 0, 1), 30), math.radians(130), math.radians(170)), False)
sketch10.addGeometry(Part.LineSegment(App.Vector(-30, 5, 0), App.Vector(-22, 4, 0)), False)
sketch10.addGeometry(Part.ArcOfCircle(Part.Circle(App.Vector(0, 0, 0), App.Vector(0, 0, 1), 23), math.radians(130), math.radians(170)), False)
sketch10.addGeometry(Part.LineSegment(App.Vector(22, 4, 0), App.Vector(30, 5, 0)), False)
sketch10.addGeometry(Part.ArcOfCircle(Part.Circle(App.Vector(0, 0, 0), App.Vector(0, 0, 1), 30), math.radians(10), math.radians(50)), False)
sketch10.addGeometry(Part.LineSegment(App.Vector(19, 23, 0), App.Vector(14, 17, 0)), False)
sketch10.addGeometry(Part.ArcOfCircle(Part.Circle(App.Vector(0, 0, 0), App.Vector(0, 0, 1), 23), math.radians(10), math.radians(50)), False)
sketch10.addGeometry(Part.LineSegment(App.Vector(-8, -21, 0), App.Vector(-10, -28, 0)), False)
sketch10.addGeometry(Part.ArcOfCircle(Part.Circle(App.Vector(0, 0, 0), App.Vector(0, 0, 1), 30), math.radians(-110), math.radians(-70)), False)
sketch10.addGeometry(Part.LineSegment(App.Vector(10, -28, 0), App.Vector(8, -21, 0)), False)
sketch10.addGeometry(Part.ArcOfCircle(Part.Circle(App.Vector(0, 0, 0), App.Vector(0, 0, 1), 23), math.radians(-110), math.radians(-70)), False)
sketch10.addConstraint(Sketcher.Constraint("Coincident", 0, 2, 1, 1))
sketch10.addConstraint(Sketcher.Constraint("Coincident", 1, 2, 2, 1))
sketch10.addConstraint(Sketcher.Constraint("Coincident", 2, 2, 3, 2))
sketch10.addConstraint(Sketcher.Constraint("Coincident", 3, 1, 0, 1))
sketch10.addConstraint(Sketcher.Constraint("Coincident", 4, 2, 5, 1))
sketch10.addConstraint(Sketcher.Constraint("Coincident", 5, 2, 6, 1))
sketch10.addConstraint(Sketcher.Constraint("Coincident", 6, 2, 7, 2))
sketch10.addConstraint(Sketcher.Constraint("Coincident", 7, 1, 4, 1))
sketch10.addConstraint(Sketcher.Constraint("Coincident", 8, 2, 9, 1))
sketch10.addConstraint(Sketcher.Constraint("Coincident", 9, 2, 10, 1))
sketch10.addConstraint(Sketcher.Constraint("Coincident", 10, 2, 11, 2))
sketch10.addConstraint(Sketcher.Constraint("Coincident", 11, 1, 8, 1))
sketch10.addConstraint(Sketcher.Constraint("Coincident", 1, 3, -1, 1))
sketch10.addConstraint(Sketcher.Constraint("Coincident", 3, 3, -1, 1))
sketch10.addConstraint(Sketcher.Constraint("Coincident", 5, 3, -1, 1))
sketch10.addConstraint(Sketcher.Constraint("Coincident", 7, 3, -1, 1))
sketch10.addConstraint(Sketcher.Constraint("Coincident", 9, 3, -1, 1))
sketch10.addConstraint(Sketcher.Constraint("Coincident", 11, 3, -1, 1))
sketch10.addConstraint(Sketcher.Constraint("Equal", 1, 5))
sketch10.addConstraint(Sketcher.Constraint("Equal", 3, 7))
sketch10.addConstraint(Sketcher.Constraint("Equal", 5, 9))
sketch10.addConstraint(Sketcher.Constraint("Equal", 7, 11))
sketch10.addConstraint(Sketcher.Constraint("Horizontal", 1, 2, 4, 2))
sketch10.addConstraint(Sketcher.Constraint("Horizontal", 0, 2, 5, 2))
sketch10.addConstraint(Sketcher.Constraint("Horizontal", 3, 1, 6, 2))
sketch10.addConstraint(Sketcher.Constraint("Horizontal", 2, 2, 7, 1))
sketch10.addConstraint(Sketcher.Constraint("Horizontal", 8, 2, 9, 2))
sketch10.addConstraint(Sketcher.Constraint("Horizontal", 10, 2, 11, 1))
sketch10.addConstraint(Sketcher.Constraint("Radius", 1, Q("30 mm")))
sketch10.addConstraint(Sketcher.Constraint("Radius", 3, Q("22.5 mm")))
sketch10.addConstraint(Sketcher.Constraint("Angle", 0, Q("130 deg")))
sketch10.addConstraint(Sketcher.Constraint("Angle", 2, Q("-10 deg")))
sketch10.addConstraint(Sketcher.Constraint("Angle", 8, Q("-110 deg")))
sketch10.addConstraint(Sketcher.Constraint("DistanceY", -1, 1, 3, 1, Q("17.236 mm")))
sketch10.addConstraint(Sketcher.Constraint("DistanceY", 8, 2, -1, 1, Q("28.190779 mm")))
sketch10.addConstraint(Sketcher.Constraint("DistanceY", 2, 2, 0, 2, Q("19.074249 mm")))
pad4 = body.newObject("PartDesign::Pad", "Pad003")
pad4.Profile = sketch10
pad4.Length = 9

# Sketch on XY plane
sketch11 = body.newObject("Sketcher::SketchObject", "Sketch010")
sketch11.AttachmentSupport = (doc.getObject("XY_Plane"), [""])
sketch11.MapMode = "FlatFace"
sketch11.AttachmentOffset = App.Placement(App.Vector(0, 0, 10), App.Rotation())
sketch11.addGeometry(Part.LineSegment(App.Vector(-29.5, 5.2, 0), App.Vector(-28.6, 5, 0)), False)
sketch11.addGeometry(Part.ArcOfCircle(Part.Circle(App.Vector(0, 0, 0), App.Vector(0, 0, 1), 29), math.radians(130), math.radians(170)), False)
sketch11.addGeometry(Part.LineSegment(App.Vector(-18.6, 22.2, 0), App.Vector(-19.3, 23, 0)), False)
sketch11.addGeometry(Part.ArcOfCircle(Part.Circle(App.Vector(0, 0, 0), App.Vector(0, 0, 1), 30), math.radians(130), math.radians(170)), False)
sketch11.addGeometry(Part.ArcOfCircle(Part.Circle(App.Vector(0, 0, 0), App.Vector(0, 0, 1), 29), math.radians(10), math.radians(50)), False)
sketch11.addGeometry(Part.LineSegment(App.Vector(28.6, 5, 0), App.Vector(29.5, 5.2, 0)), False)
sketch11.addGeometry(Part.ArcOfCircle(Part.Circle(App.Vector(0, 0, 0), App.Vector(0, 0, 1), 30), math.radians(10), math.radians(50)), False)
sketch11.addGeometry(Part.LineSegment(App.Vector(19.3, 23, 0), App.Vector(18.6, 22.2, 0)), False)
sketch11.addGeometry(Part.ArcOfCircle(Part.Circle(App.Vector(0, 0, 0), App.Vector(0, 0, 1), 30), math.radians(-110), math.radians(-70)), False)
sketch11.addGeometry(Part.LineSegment(App.Vector(10.3, -28.2, 0), App.Vector(9.9, -27.3, 0)), False)
sketch11.addGeometry(Part.ArcOfCircle(Part.Circle(App.Vector(0, 0, 0), App.Vector(0, 0, 1), 29), math.radians(-110), math.radians(-70)), False)
sketch11.addGeometry(Part.LineSegment(App.Vector(-9.9, -27.3, 0), App.Vector(-10.3, -28.2, 0)), False)
sketch11.addConstraint(Sketcher.Constraint("Coincident", 0, 2, 1, 2))
sketch11.addConstraint(Sketcher.Constraint("Coincident", 1, 1, 2, 1))
sketch11.addConstraint(Sketcher.Constraint("Coincident", 2, 2, 3, 1))
sketch11.addConstraint(Sketcher.Constraint("Coincident", 3, 2, 0, 1))
sketch11.addConstraint(Sketcher.Constraint("Coincident", 4, 1, 5, 1))
sketch11.addConstraint(Sketcher.Constraint("Coincident", 5, 2, 6, 1))
sketch11.addConstraint(Sketcher.Constraint("Coincident", 6, 2, 7, 1))
sketch11.addConstraint(Sketcher.Constraint("Coincident", 7, 2, 4, 2))
sketch11.addConstraint(Sketcher.Constraint("Coincident", 8, 2, 9, 1))
sketch11.addConstraint(Sketcher.Constraint("Coincident", 9, 2, 10, 2))
sketch11.addConstraint(Sketcher.Constraint("Coincident", 10, 1, 11, 1))
sketch11.addConstraint(Sketcher.Constraint("Coincident", 11, 2, 8, 1))
sketch11.addConstraint(Sketcher.Constraint("Coincident", 1, 3, -1, 1))
sketch11.addConstraint(Sketcher.Constraint("Coincident", 3, 3, -1, 1))
sketch11.addConstraint(Sketcher.Constraint("Coincident", 4, 3, -1, 1))
sketch11.addConstraint(Sketcher.Constraint("Coincident", 6, 3, -1, 1))
sketch11.addConstraint(Sketcher.Constraint("Coincident", 8, 3, -1, 1))
sketch11.addConstraint(Sketcher.Constraint("Coincident", 10, 3, -1, 1))
sketch11.addConstraint(Sketcher.Constraint("Equal", 1, 4))
sketch11.addConstraint(Sketcher.Constraint("Equal", 3, 6))
sketch11.addConstraint(Sketcher.Constraint("Equal", 6, 8))
sketch11.addConstraint(Sketcher.Constraint("Equal", 4, 10))
sketch11.addConstraint(Sketcher.Constraint("Horizontal", 0, 2, 4, 1))
sketch11.addConstraint(Sketcher.Constraint("Horizontal", 3, 2, 5, 2))
sketch11.addConstraint(Sketcher.Constraint("Horizontal", 2, 2, 6, 2))
sketch11.addConstraint(Sketcher.Constraint("Horizontal", 1, 1, 7, 2))
sketch11.addConstraint(Sketcher.Constraint("Horizontal", 9, 2, 10, 1))
sketch11.addConstraint(Sketcher.Constraint("Horizontal", 8, 2, 11, 2))
sketch11.addConstraint(Sketcher.Constraint("Radius", 1, Q("29 mm")))
sketch11.addConstraint(Sketcher.Constraint("Radius", 3, Q("30 mm")))
sketch11.addConstraint(Sketcher.Constraint("Angle", 0, Q("-10 deg")))
sketch11.addConstraint(Sketcher.Constraint("Angle", 2, Q("130 deg")))
sketch11.addConstraint(Sketcher.Constraint("Angle", 9, Q("110 deg")))
sketch11.addConstraint(Sketcher.Constraint("DistanceX", 1, 1, -1, 1, Q("18.640841 mm")))
sketch11.addConstraint(Sketcher.Constraint("DistanceY", 8, 2, -1, 1, Q("28.190779 mm")))
sketch11.addConstraint(Sketcher.Constraint("DistanceY", 0, 2, 1, 1, Q("17.179492 mm")))
pocket7 = body.newObject("PartDesign::Pocket", "Pocket006")
pocket7.Profile = sketch11
pocket7.Length = 6
pocket7.Reversed = True

# Sketch on XY plane
sketch12 = body.newObject("Sketcher::SketchObject", "Sketch011")
sketch12.AttachmentSupport = (doc.getObject("XY_Plane"), [""])
sketch12.MapMode = "FlatFace"
sketch12.AttachmentOffset = App.Placement(App.Vector(0, 0, 16), App.Rotation())
sketch12.addGeometry(Part.Circle(App.Vector(0, -25.8, 0), App.Vector(0, 0, 1), 2.5), False)
sketch12.addConstraint(Sketcher.Constraint("PointOnObject", 0, 3, -2))
sketch12.addConstraint(Sketcher.Constraint("Diameter", 0, Q("5 mm")))
sketch12.addConstraint(Sketcher.Constraint("DistanceY", 0, 3, -1, 1, Q("25.75 mm")))
pocket8 = body.newObject("PartDesign::Pocket", "Pocket007")
pocket8.Profile = sketch12
pocket8.Type = "UpToFirst"

# Sketch on XY plane
sketch13 = body.newObject("Sketcher::SketchObject", "Sketch012")
sketch13.AttachmentSupport = (doc.getObject("XY_Plane"), [""])
sketch13.MapMode = "FlatFace"
sketch13.AttachmentOffset = App.Placement(App.Vector(0, 0, 16), App.Rotation())
sketch13.addGeometry(Part.Circle(App.Vector(22.3, 12.9, 0), App.Vector(0, 0, 1), 2.5), False)
sketch13.addConstraint(Sketcher.Constraint("Diameter", 0, Q("5 mm")))
sketch13.addConstraint(Sketcher.Constraint("DistanceY", -1, 1, 0, 3, Q("12.875 mm")))
sketch13.addConstraint(Sketcher.Constraint("DistanceX", -1, 1, 0, 3, Q("22.300154 mm")))
pocket9 = body.newObject("PartDesign::Pocket", "Pocket008")
pocket9.Profile = sketch13
pocket9.Type = "UpToFirst"

# Sketch on XY plane
sketch14 = body.newObject("Sketcher::SketchObject", "Sketch013")
sketch14.AttachmentSupport = (doc.getObject("XY_Plane"), [""])
sketch14.MapMode = "FlatFace"
sketch14.AttachmentOffset = App.Placement(App.Vector(0, 0, 16), App.Rotation())
sketch14.addGeometry(Part.ArcOfCircle(Part.Circle(App.Vector(-22.3, 12.9, 0), App.Vector(0, 0, 1), 2.5), math.radians(150), math.radians(330)), False)
sketch14.addGeometry(Part.LineSegment(App.Vector(-20.1, 11.6, 0), App.Vector(-24.5, 14.1, 0)), False)
sketch14.addConstraint(Sketcher.Constraint("Coincident", 0, 1, 1, 2))
sketch14.addConstraint(Sketcher.Constraint("Coincident", 1, 1, 0, 2))
sketch14.addConstraint(Sketcher.Constraint("Radius", 0, Q("2.5 mm")))
sketch14.addConstraint(Sketcher.Constraint("Angle", 1, Q("150 deg")))
sketch14.addConstraint(Sketcher.Constraint("DistanceY", 0, 3, 0, 1, Q("1.25 mm")))
sketch14.addConstraint(Sketcher.Constraint("DistanceY", -1, 1, 0, 3, Q("12.875 mm")))
sketch14.addConstraint(Sketcher.Constraint("DistanceX", 1, 1, -1, 1, Q("20.135091 mm")))
pocket10 = body.newObject("PartDesign::Pocket", "Pocket009")
pocket10.Profile = sketch14
pocket10.Type = "UpToFirst"

# Sketch on XY plane
sketch15 = body.newObject("Sketcher::SketchObject", "Sketch014")
sketch15.AttachmentSupport = (doc.getObject("XY_Plane"), [""])
sketch15.MapMode = "FlatFace"
sketch15.AttachmentOffset = App.Placement(App.Vector(0, 0, 16), App.Rotation())
sketch15.addGeometry(Part.LineSegment(App.Vector(-24.5, 14.1, 0), App.Vector(-20.1, 11.6, 0)), False)
sketch15.addGeometry(Part.ArcOfCircle(Part.Circle(App.Vector(-22.3, 12.9, 0), App.Vector(0, 0, 1), 2.5), math.radians(-30), math.radians(0)), False)
sketch15.addGeometry(Part.ArcOfCircle(Part.Circle(App.Vector(-22.3, 12.9, 0), App.Vector(0, 0, 1), 2.5), math.radians(0), math.radians(150)), False)
sketch15.addConstraint(Sketcher.Constraint("Coincident", 0, 2, 1, 1))
sketch15.addConstraint(Sketcher.Constraint("Tangent", 1, 2, 2, 1))
sketch15.addConstraint(Sketcher.Constraint("Coincident", 2, 2, 0, 1))
sketch15.addConstraint(Sketcher.Constraint("Equal", 1, 2))
sketch15.addConstraint(Sketcher.Constraint("Horizontal", 2, 3, 1, 2))
sketch15.addConstraint(Sketcher.Constraint("Radius", 1, Q("2.5 mm")))
sketch15.addConstraint(Sketcher.Constraint("Angle", 0, Q("-30 deg")))
sketch15.addConstraint(Sketcher.Constraint("DistanceY", 0, 2, 2, 3, Q("1.25 mm")))
sketch15.addConstraint(Sketcher.Constraint("DistanceY", -1, 1, 1, 3, Q("12.875 mm")))
sketch15.addConstraint(Sketcher.Constraint("DistanceX", 0, 2, -1, 1, Q("20.135091 mm")))
pocket11 = body.newObject("PartDesign::Pocket", "Pocket010")
pocket11.Profile = sketch15
pocket11.Type = "UpToFirst"

# Sketch on XY plane
sketch16 = body.newObject("Sketcher::SketchObject", "Sketch015")
sketch16.AttachmentSupport = (doc.getObject("XY_Plane"), [""])
sketch16.MapMode = "FlatFace"
sketch16.AttachmentOffset = App.Placement(App.Vector(0, 0, 16), App.Rotation())
sketch16.addGeometry(Part.ArcOfCircle(Part.Circle(App.Vector(-22.3, 12.9, 0), App.Vector(0, 0, 1), 2.5), math.radians(150), math.radians(330)), False)
sketch16.addGeometry(Part.LineSegment(App.Vector(-20.1, 11.6, 0), App.Vector(-24.5, 14.1, 0)), False)
sketch16.addConstraint(Sketcher.Constraint("Coincident", 0, 1, 1, 2))
sketch16.addConstraint(Sketcher.Constraint("Coincident", 1, 1, 0, 2))
sketch16.addConstraint(Sketcher.Constraint("Radius", 0, Q("2.5 mm")))
sketch16.addConstraint(Sketcher.Constraint("Angle", 1, Q("150 deg")))
sketch16.addConstraint(Sketcher.Constraint("DistanceY", 0, 3, 0, 1, Q("1.25 mm")))
sketch16.addConstraint(Sketcher.Constraint("DistanceY", -1, 1, 0, 3, Q("12.875 mm")))
sketch16.addConstraint(Sketcher.Constraint("DistanceX", 1, 1, -1, 1, Q("20.135091 mm")))
pocket12 = body.newObject("PartDesign::Pocket", "Pocket011")
pocket12.Profile = sketch16
pocket12.Length = 9

# Sketch on XY plane
sketch17 = body.newObject("Sketcher::SketchObject", "Sketch016")
sketch17.AttachmentSupport = (doc.getObject("XY_Plane"), [""])
sketch17.MapMode = "FlatFace"
sketch17.AttachmentOffset = App.Placement(App.Vector(0, 0, 16), App.Rotation())
sketch17.addGeometry(Part.LineSegment(App.Vector(-24.5, 14.1, 0), App.Vector(-20.1, 11.6, 0)), False)
sketch17.addGeometry(Part.ArcOfCircle(Part.Circle(App.Vector(-22.3, 12.9, 0), App.Vector(0, 0, 1), 2.5), math.radians(-30), math.radians(0)), False)
sketch17.addGeometry(Part.ArcOfCircle(Part.Circle(App.Vector(-22.3, 12.9, 0), App.Vector(0, 0, 1), 2.5), math.radians(0), math.radians(150)), False)
sketch17.addConstraint(Sketcher.Constraint("Coincident", 0, 2, 1, 1))
sketch17.addConstraint(Sketcher.Constraint("Tangent", 1, 2, 2, 1))
sketch17.addConstraint(Sketcher.Constraint("Coincident", 2, 2, 0, 1))
sketch17.addConstraint(Sketcher.Constraint("Equal", 1, 2))
sketch17.addConstraint(Sketcher.Constraint("Horizontal", 2, 3, 1, 2))
sketch17.addConstraint(Sketcher.Constraint("Radius", 1, Q("2.5 mm")))
sketch17.addConstraint(Sketcher.Constraint("Angle", 0, Q("-30 deg")))
sketch17.addConstraint(Sketcher.Constraint("DistanceY", 0, 2, 2, 3, Q("1.25 mm")))
sketch17.addConstraint(Sketcher.Constraint("DistanceY", -1, 1, 1, 3, Q("12.875 mm")))
sketch17.addConstraint(Sketcher.Constraint("DistanceX", 0, 2, -1, 1, Q("20.135091 mm")))
pocket13 = body.newObject("PartDesign::Pocket", "Pocket012")
pocket13.Profile = sketch17
pocket13.Length = 9

doc.recompute()
